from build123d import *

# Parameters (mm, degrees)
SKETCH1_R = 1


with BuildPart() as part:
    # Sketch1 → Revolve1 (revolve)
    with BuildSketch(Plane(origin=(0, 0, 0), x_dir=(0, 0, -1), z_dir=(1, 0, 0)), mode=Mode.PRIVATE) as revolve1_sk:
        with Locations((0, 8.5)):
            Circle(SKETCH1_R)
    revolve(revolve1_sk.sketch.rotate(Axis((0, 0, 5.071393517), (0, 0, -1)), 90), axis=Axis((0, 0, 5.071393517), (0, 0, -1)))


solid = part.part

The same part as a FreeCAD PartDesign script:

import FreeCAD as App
import Part
import Sketcher

doc = App.newDocument("Part")
body = doc.addObject("PartDesign::Body", "Body")

sketch1 = body.newObject("Sketcher::SketchObject", "Sketch")
sketch1.AttachmentSupport = (doc.getObject("YZ_Plane"), [""])
sketch1.MapMode = "FlatFace"
sketch1.addGeometry(Part.Circle(App.Vector(8.5, 0, 0), App.Vector(0, 0, 1), 1), False)
sketch1.addConstraint([
    Sketcher.Constraint("PointOnObject", 0, 3, -1),
    Sketcher.Constraint("Diameter", 0, 2.0),
    Sketcher.Constraint("DistanceX", -1, 1, 0, 3, 8.5),
])
revolution = body.newObject("PartDesign::Revolution", "Revolution")
revolution.Profile = sketch1
revolution.ReferenceAxis = (sketch1, ["V_Axis"])
revolution.Angle = 360

doc.recompute()
